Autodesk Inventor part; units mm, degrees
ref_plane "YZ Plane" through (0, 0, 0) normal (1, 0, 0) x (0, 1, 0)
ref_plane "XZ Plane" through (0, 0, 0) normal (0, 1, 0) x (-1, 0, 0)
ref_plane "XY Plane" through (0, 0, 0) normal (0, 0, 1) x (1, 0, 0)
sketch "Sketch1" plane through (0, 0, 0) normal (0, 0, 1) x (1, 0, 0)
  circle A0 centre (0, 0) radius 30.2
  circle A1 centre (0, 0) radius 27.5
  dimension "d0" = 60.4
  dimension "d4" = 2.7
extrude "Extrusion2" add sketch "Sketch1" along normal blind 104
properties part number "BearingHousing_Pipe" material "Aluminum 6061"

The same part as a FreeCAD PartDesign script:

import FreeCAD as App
import Part
import Sketcher

V = App.Vector

doc = App.newDocument("Part")
body = doc.addObject("PartDesign::Body", "Body")

sketch1 = body.newObject("Sketcher::SketchObject", "Sketch")
sketch1.AttachmentSupport = (doc.getObject("XY_Plane"), [""])
sketch1.MapMode = "FlatFace"
sketch1.addGeometry([
    Part.Circle(V(0, 0, 0), V(0, 0, 1), 30.2),
    Part.Circle(V(0, 0, 0), V(0, 0, 1), 27.5),
], False)
sketch1.addConstraint([
    Sketcher.Constraint("Coincident", 0, 3, -1, 1),
    Sketcher.Constraint("Coincident", 1, 3, -1, 1),
    Sketcher.Constraint("Diameter", 0, 60.4),
    Sketcher.Constraint("Diameter", 1, 55.0),
])
pad1 = body.newObject("PartDesign::Pad", "Pad")
pad1.Profile = sketch1
pad1.Length = 104

doc.recompute()
